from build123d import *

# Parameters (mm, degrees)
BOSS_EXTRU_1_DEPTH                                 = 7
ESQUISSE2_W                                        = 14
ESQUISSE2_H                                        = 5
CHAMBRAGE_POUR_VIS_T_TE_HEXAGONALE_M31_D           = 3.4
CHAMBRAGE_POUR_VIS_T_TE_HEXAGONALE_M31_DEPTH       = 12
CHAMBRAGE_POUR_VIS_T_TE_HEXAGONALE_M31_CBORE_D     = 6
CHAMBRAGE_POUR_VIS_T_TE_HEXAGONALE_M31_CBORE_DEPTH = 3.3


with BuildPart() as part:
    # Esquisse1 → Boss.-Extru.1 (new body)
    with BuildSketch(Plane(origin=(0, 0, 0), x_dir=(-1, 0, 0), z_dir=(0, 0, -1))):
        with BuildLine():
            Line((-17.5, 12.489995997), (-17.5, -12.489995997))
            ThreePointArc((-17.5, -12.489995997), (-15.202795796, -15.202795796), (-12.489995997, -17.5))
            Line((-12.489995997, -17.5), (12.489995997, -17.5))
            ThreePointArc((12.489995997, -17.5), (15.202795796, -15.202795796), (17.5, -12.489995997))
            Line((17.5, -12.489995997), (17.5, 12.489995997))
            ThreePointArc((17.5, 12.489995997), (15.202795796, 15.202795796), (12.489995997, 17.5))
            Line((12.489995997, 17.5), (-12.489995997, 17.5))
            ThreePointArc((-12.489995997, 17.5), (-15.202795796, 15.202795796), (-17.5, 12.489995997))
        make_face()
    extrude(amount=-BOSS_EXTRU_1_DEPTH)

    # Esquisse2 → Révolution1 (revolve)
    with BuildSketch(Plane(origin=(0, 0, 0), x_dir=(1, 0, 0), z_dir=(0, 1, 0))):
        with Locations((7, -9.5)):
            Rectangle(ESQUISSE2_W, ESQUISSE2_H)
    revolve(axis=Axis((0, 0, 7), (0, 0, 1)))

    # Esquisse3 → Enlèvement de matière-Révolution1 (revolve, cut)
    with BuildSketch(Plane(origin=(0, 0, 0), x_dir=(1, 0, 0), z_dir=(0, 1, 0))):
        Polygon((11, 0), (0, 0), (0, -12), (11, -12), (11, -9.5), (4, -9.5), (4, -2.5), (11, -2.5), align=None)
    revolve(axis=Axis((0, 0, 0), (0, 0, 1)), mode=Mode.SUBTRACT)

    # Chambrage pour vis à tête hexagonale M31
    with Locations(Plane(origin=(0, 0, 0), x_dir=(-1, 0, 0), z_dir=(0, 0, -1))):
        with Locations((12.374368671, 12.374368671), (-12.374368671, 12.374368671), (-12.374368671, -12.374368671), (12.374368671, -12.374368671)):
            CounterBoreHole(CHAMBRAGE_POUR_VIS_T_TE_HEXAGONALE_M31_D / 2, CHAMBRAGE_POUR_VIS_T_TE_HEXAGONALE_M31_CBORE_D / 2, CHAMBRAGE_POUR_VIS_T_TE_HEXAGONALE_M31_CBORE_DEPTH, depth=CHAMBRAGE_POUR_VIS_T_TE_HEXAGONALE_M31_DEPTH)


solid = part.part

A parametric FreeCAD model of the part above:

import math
import FreeCAD as App
import Part
import Sketcher
Q = App.Units.Quantity


def add_polygon(sketch, points):
    """Adds a closed chain of lines whose ends are joined by coincident constraints."""
    first, n = sketch.GeometryCount, len(points)
    for a, b in zip(points, points[1:] + points[:1]):
        sketch.addGeometry(Part.LineSegment(App.Vector(*a, 0), App.Vector(*b, 0)), False)
    for i in range(n):
        sketch.addConstraint(Sketcher.Constraint("Coincident", first + i, 2, first + (i + 1) % n, 1))

doc = App.newDocument("Part")
params = doc.addObject("Spreadsheet::Sheet", "Params")
for row, (alias, value) in enumerate([
    ("sketch1_radius", "21.5 mm"),
    ("pad1_length", "7 mm"),
    ("sketch2_width", "14 mm"),
    ("sketch2_height", "5 mm"),
    ("revolution_angle", "360 deg"),
    ("sketch3_width", "11 mm"),
    ("sketch3_width2", "7 mm"),
    ("sketch3_height", "12 mm"),
    ("groove_angle", "360 deg"),
    ("sketch4_diameter", "3.4 mm"),
    ("hole_diameter", "3.4 mm"),
    ("hole_depth", "12 mm"),
    ("hole_cbore_diameter", "6 mm"),
    ("hole_cbore_depth", "3.3 mm"),
], start=1):
    params.set(f"A{row}", alias)
    params.set(f"B{row}", "=" + value)
    params.setAlias(f"B{row}", alias)

body = doc.addObject("PartDesign::Body", "Body")

sketch1 = body.newObject("Sketcher::SketchObject", "Sketch")
sketch1.AttachmentSupport = (doc.getObject("XY_Plane"), [""])
sketch1.MapMode = "FlatFace"
sketch1.addGeometry(Part.LineSegment(App.Vector(17.5, 12.489996, 0), App.Vector(17.5, -12.489996, 0)), False)
sketch1.addGeometry(Part.ArcOfCircle(Part.Circle(App.Vector(0, 0, 0), App.Vector(0, 0, 1), 21.5), math.radians(-54.484016), math.radians(-35.515984)), False)
sketch1.addGeometry(Part.LineSegment(App.Vector(12.489996, -17.5, 0), App.Vector(-12.489996, -17.5, 0)), False)
sketch1.addGeometry(Part.ArcOfCircle(Part.Circle(App.Vector(0, 0, 0), App.Vector(0, 0, 1), 21.5), math.radians(-144.484016), math.radians(-125.515984)), False)
sketch1.addGeometry(Part.LineSegment(App.Vector(-17.5, -12.489996, 0), App.Vector(-17.5, 12.489996, 0)), False)
sketch1.addGeometry(Part.ArcOfCircle(Part.Circle(App.Vector(0, 0, 0), App.Vector(0, 0, 1), 21.5), math.radians(125.515984), math.radians(144.484016)), False)
sketch1.addGeometry(Part.LineSegment(App.Vector(-12.489996, 17.5, 0), App.Vector(12.489996, 17.5, 0)), False)
sketch1.addGeometry(Part.ArcOfCircle(Part.Circle(App.Vector(0, 0, 0), App.Vector(0, 0, 1), 21.5), math.radians(35.515984), math.radians(54.484016)), False)
sketch1.addConstraint(Sketcher.Constraint("Coincident", 0, 2, 1, 2))
sketch1.addConstraint(Sketcher.Constraint("Coincident", 1, 1, 2, 1))
sketch1.addConstraint(Sketcher.Constraint("Coincident", 2, 2, 3, 2))
sketch1.addConstraint(Sketcher.Constraint("Coincident", 3, 1, 4, 1))
sketch1.addConstraint(Sketcher.Constraint("Coincident", 4, 2, 5, 2))
sketch1.addConstraint(Sketcher.Constraint("Coincident", 5, 1, 6, 1))
sketch1.addConstraint(Sketcher.Constraint("Coincident", 6, 2, 7, 2))
sketch1.addConstraint(Sketcher.Constraint("Coincident", 7, 1, 0, 1))
sketch1.addConstraint(Sketcher.Constraint("Vertical", 0))
sketch1.addConstraint(Sketcher.Constraint("Horizontal", 2))
sketch1.addConstraint(Sketcher.Constraint("Vertical", 4))
sketch1.addConstraint(Sketcher.Constraint("Horizontal", 6))
sketch1.addConstraint(Sketcher.Constraint("Coincident", 1, 3, -1, 1))
sketch1.addConstraint(Sketcher.Constraint("Coincident", 3, 3, -1, 1))
sketch1.addConstraint(Sketcher.Constraint("Coincident", 5, 3, -1, 1))
sketch1.addConstraint(Sketcher.Constraint("Coincident", 7, 3, -1, 1))
sketch1.addConstraint(Sketcher.Constraint("Equal", 1, 3))
sketch1.addConstraint(Sketcher.Constraint("Equal", 3, 5))
sketch1.addConstraint(Sketcher.Constraint("Equal", 5, 7))
sketch1.addConstraint(Sketcher.Constraint("Horizontal", 0, 2, 3, 1))
sketch1.addConstraint(Sketcher.Constraint("Vertical", 2, 2, 5, 1))
sketch1.addConstraint(Sketcher.Constraint("Equal", 6, 0))
sketch1.addConstraint(Sketcher.Constraint("Radius", 1, Q("21.5 mm")))
sketch1.addConstraint(Sketcher.Constraint("DistanceX", -1, 1, 0, 2, Q("17.5 mm")))
sketch1.setExpression("Constraints[22]", "Params.sketch1_radius")
pad1 = body.newObject("PartDesign::Pad", "Pad")
pad1.Profile = sketch1
pad1.setExpression("Length", "Params.pad1_length")

sketch2 = body.newObject("Sketcher::SketchObject", "Sketch001")
sketch2.AttachmentSupport = (doc.getObject("XZ_Plane"), [""])
sketch2.MapMode = "FlatFace"
add_polygon(sketch2, [(0, 7), (0, 12), (14, 12), (14, 7)])
sketch2.addConstraint(Sketcher.Constraint("Vertical", 0))
sketch2.addConstraint(Sketcher.Constraint("Horizontal", 1))
sketch2.addConstraint(Sketcher.Constraint("Vertical", 2))
sketch2.addConstraint(Sketcher.Constraint("Horizontal", 3))
sketch2.addConstraint(Sketcher.Constraint("PointOnObject", 0, 2, -2))
sketch2.addConstraint(Sketcher.Constraint("DistanceX", 1, 1, 1, 2, Q("14 mm")))
sketch2.addConstraint(Sketcher.Constraint("DistanceY", 0, 1, 0, 2, Q("5 mm")))
sketch2.addConstraint(Sketcher.Constraint("DistanceY", -1, 1, 0, 2, Q("12 mm")))
sketch2.setExpression("Constraints[9]", "Params.sketch2_width")
sketch2.setExpression("Constraints[10]", "Params.sketch2_height")
revolution = body.newObject("PartDesign::Revolution", "Revolution")
revolution.Profile = sketch2
revolution.ReferenceAxis = (sketch2, ["V_Axis"])
revolution.setExpression("Angle", "Params.revolution_angle")

sketch3 = body.newObject("Sketcher::SketchObject", "Sketch002")
sketch3.AttachmentSupport = (doc.getObject("XZ_Plane"), [""])
sketch3.MapMode = "FlatFace"
add_polygon(sketch3, [(11, 0), (0, 0), (0, 12), (11, 12), (11, 9.5), (4, 9.5), (4, 2.5), (11, 2.5)])
sketch3.addConstraint(Sketcher.Constraint("Horizontal", 0))
sketch3.addConstraint(Sketcher.Constraint("Vertical", 1))
sketch3.addConstraint(Sketcher.Constraint("Horizontal", 2))
sketch3.addConstraint(Sketcher.Constraint("Vertical", 3))
sketch3.addConstraint(Sketcher.Constraint("Horizontal", 4))
sketch3.addConstraint(Sketcher.Constraint("Vertical", 5))
sketch3.addConstraint(Sketcher.Constraint("Horizontal", 6))
sketch3.addConstraint(Sketcher.Constraint("Vertical", 7))
sketch3.addConstraint(Sketcher.Constraint("Coincident", 0, 2, -1, 1))
sketch3.addConstraint(Sketcher.Constraint("Vertical", 3, 2, 6, 2))
sketch3.addConstraint(Sketcher.Constraint("Equal", 6, 5))
sketch3.addConstraint(Sketcher.Constraint("Equal", 3, 7))
sketch3.addConstraint(Sketcher.Constraint("DistanceX", 0, 2, 0, 1, Q("11 mm")))
sketch3.addConstraint(Sketcher.Constraint("DistanceX", 4, 2, 4, 1, Q("7 mm")))
sketch3.addConstraint(Sketcher.Constraint("DistanceY", 1, 1, 1, 2, Q("12 mm")))
sketch3.setExpression("Constraints[20]", "Params.sketch3_width")
sketch3.setExpression("Constraints[21]", "Params.sketch3_width2")
sketch3.setExpression("Constraints[22]", "Params.sketch3_height")
groove = body.newObject("PartDesign::Groove", "Groove")
groove.Profile = sketch3
groove.ReferenceAxis = (sketch3, ["V_Axis"])
groove.setExpression("Angle", "Params.groove_angle")

sketch4 = body.newObject("Sketcher::SketchObject", "Sketch003")
sketch4.AttachmentSupport = (doc.getObject("XY_Plane"), [""])
sketch4.MapMode = "FlatFace"
sketch4.addGeometry(Part.Circle(App.Vector(-12.374369, 12.374369, 0), App.Vector(0, 0, 1), 1.7), False)
sketch4.addGeometry(Part.Circle(App.Vector(12.374369, 12.374369, 0), App.Vector(0, 0, 1), 1.7), False)
sketch4.addGeometry(Part.Circle(App.Vector(12.374369, -12.374369, 0), App.Vector(0, 0, 1), 1.7), False)
sketch4.addGeometry(Part.Circle(App.Vector(-12.374369, -12.374369, 0), App.Vector(0, 0, 1), 1.7), False)
sketch4.addConstraint(Sketcher.Constraint("Equal", 0, 1))
sketch4.addConstraint(Sketcher.Constraint("Equal", 1, 2))
sketch4.addConstraint(Sketcher.Constraint("Equal", 2, 3))
sketch4.addConstraint(Sketcher.Constraint("Symmetric", 0, 3, 2, 3, -1, 1))
sketch4.addConstraint(Sketcher.Constraint("Symmetric", 1, 3, 3, 3, -1, 1))
sketch4.addConstraint(Sketcher.Constraint("Symmetric", 0, 3, 1, 3, -2))
sketch4.addConstraint(Sketcher.Constraint("Diameter", 0, Q("3.4 mm")))
sketch4.addConstraint(Sketcher.Constraint("DistanceX", 0, 3, -1, 1, Q("12.374369 mm")))
sketch4.addConstraint(Sketcher.Constraint("DistanceY", -1, 1, 0, 3, Q("12.374369 mm")))
sketch4.setExpression("Constraints[6]", "Params.sketch4_diameter")
doc.recompute()
hole = body.newObject("PartDesign::Hole", "Hole")
hole.Profile = sketch4
hole.ThreadType = "None"
hole.setExpression("Diameter", "Params.hole_diameter")
hole.DepthType = "Dimension"
hole.setExpression("Depth", "Params.hole_depth")
hole.DrillPoint = "Flat"
hole.HoleCutType = "Counterbore"
hole.setExpression("HoleCutDiameter", "Params.hole_cbore_diameter")
hole.setExpression("HoleCutDepth", "Params.hole_cbore_depth")
hole.Reversed = True

doc.recompute()
